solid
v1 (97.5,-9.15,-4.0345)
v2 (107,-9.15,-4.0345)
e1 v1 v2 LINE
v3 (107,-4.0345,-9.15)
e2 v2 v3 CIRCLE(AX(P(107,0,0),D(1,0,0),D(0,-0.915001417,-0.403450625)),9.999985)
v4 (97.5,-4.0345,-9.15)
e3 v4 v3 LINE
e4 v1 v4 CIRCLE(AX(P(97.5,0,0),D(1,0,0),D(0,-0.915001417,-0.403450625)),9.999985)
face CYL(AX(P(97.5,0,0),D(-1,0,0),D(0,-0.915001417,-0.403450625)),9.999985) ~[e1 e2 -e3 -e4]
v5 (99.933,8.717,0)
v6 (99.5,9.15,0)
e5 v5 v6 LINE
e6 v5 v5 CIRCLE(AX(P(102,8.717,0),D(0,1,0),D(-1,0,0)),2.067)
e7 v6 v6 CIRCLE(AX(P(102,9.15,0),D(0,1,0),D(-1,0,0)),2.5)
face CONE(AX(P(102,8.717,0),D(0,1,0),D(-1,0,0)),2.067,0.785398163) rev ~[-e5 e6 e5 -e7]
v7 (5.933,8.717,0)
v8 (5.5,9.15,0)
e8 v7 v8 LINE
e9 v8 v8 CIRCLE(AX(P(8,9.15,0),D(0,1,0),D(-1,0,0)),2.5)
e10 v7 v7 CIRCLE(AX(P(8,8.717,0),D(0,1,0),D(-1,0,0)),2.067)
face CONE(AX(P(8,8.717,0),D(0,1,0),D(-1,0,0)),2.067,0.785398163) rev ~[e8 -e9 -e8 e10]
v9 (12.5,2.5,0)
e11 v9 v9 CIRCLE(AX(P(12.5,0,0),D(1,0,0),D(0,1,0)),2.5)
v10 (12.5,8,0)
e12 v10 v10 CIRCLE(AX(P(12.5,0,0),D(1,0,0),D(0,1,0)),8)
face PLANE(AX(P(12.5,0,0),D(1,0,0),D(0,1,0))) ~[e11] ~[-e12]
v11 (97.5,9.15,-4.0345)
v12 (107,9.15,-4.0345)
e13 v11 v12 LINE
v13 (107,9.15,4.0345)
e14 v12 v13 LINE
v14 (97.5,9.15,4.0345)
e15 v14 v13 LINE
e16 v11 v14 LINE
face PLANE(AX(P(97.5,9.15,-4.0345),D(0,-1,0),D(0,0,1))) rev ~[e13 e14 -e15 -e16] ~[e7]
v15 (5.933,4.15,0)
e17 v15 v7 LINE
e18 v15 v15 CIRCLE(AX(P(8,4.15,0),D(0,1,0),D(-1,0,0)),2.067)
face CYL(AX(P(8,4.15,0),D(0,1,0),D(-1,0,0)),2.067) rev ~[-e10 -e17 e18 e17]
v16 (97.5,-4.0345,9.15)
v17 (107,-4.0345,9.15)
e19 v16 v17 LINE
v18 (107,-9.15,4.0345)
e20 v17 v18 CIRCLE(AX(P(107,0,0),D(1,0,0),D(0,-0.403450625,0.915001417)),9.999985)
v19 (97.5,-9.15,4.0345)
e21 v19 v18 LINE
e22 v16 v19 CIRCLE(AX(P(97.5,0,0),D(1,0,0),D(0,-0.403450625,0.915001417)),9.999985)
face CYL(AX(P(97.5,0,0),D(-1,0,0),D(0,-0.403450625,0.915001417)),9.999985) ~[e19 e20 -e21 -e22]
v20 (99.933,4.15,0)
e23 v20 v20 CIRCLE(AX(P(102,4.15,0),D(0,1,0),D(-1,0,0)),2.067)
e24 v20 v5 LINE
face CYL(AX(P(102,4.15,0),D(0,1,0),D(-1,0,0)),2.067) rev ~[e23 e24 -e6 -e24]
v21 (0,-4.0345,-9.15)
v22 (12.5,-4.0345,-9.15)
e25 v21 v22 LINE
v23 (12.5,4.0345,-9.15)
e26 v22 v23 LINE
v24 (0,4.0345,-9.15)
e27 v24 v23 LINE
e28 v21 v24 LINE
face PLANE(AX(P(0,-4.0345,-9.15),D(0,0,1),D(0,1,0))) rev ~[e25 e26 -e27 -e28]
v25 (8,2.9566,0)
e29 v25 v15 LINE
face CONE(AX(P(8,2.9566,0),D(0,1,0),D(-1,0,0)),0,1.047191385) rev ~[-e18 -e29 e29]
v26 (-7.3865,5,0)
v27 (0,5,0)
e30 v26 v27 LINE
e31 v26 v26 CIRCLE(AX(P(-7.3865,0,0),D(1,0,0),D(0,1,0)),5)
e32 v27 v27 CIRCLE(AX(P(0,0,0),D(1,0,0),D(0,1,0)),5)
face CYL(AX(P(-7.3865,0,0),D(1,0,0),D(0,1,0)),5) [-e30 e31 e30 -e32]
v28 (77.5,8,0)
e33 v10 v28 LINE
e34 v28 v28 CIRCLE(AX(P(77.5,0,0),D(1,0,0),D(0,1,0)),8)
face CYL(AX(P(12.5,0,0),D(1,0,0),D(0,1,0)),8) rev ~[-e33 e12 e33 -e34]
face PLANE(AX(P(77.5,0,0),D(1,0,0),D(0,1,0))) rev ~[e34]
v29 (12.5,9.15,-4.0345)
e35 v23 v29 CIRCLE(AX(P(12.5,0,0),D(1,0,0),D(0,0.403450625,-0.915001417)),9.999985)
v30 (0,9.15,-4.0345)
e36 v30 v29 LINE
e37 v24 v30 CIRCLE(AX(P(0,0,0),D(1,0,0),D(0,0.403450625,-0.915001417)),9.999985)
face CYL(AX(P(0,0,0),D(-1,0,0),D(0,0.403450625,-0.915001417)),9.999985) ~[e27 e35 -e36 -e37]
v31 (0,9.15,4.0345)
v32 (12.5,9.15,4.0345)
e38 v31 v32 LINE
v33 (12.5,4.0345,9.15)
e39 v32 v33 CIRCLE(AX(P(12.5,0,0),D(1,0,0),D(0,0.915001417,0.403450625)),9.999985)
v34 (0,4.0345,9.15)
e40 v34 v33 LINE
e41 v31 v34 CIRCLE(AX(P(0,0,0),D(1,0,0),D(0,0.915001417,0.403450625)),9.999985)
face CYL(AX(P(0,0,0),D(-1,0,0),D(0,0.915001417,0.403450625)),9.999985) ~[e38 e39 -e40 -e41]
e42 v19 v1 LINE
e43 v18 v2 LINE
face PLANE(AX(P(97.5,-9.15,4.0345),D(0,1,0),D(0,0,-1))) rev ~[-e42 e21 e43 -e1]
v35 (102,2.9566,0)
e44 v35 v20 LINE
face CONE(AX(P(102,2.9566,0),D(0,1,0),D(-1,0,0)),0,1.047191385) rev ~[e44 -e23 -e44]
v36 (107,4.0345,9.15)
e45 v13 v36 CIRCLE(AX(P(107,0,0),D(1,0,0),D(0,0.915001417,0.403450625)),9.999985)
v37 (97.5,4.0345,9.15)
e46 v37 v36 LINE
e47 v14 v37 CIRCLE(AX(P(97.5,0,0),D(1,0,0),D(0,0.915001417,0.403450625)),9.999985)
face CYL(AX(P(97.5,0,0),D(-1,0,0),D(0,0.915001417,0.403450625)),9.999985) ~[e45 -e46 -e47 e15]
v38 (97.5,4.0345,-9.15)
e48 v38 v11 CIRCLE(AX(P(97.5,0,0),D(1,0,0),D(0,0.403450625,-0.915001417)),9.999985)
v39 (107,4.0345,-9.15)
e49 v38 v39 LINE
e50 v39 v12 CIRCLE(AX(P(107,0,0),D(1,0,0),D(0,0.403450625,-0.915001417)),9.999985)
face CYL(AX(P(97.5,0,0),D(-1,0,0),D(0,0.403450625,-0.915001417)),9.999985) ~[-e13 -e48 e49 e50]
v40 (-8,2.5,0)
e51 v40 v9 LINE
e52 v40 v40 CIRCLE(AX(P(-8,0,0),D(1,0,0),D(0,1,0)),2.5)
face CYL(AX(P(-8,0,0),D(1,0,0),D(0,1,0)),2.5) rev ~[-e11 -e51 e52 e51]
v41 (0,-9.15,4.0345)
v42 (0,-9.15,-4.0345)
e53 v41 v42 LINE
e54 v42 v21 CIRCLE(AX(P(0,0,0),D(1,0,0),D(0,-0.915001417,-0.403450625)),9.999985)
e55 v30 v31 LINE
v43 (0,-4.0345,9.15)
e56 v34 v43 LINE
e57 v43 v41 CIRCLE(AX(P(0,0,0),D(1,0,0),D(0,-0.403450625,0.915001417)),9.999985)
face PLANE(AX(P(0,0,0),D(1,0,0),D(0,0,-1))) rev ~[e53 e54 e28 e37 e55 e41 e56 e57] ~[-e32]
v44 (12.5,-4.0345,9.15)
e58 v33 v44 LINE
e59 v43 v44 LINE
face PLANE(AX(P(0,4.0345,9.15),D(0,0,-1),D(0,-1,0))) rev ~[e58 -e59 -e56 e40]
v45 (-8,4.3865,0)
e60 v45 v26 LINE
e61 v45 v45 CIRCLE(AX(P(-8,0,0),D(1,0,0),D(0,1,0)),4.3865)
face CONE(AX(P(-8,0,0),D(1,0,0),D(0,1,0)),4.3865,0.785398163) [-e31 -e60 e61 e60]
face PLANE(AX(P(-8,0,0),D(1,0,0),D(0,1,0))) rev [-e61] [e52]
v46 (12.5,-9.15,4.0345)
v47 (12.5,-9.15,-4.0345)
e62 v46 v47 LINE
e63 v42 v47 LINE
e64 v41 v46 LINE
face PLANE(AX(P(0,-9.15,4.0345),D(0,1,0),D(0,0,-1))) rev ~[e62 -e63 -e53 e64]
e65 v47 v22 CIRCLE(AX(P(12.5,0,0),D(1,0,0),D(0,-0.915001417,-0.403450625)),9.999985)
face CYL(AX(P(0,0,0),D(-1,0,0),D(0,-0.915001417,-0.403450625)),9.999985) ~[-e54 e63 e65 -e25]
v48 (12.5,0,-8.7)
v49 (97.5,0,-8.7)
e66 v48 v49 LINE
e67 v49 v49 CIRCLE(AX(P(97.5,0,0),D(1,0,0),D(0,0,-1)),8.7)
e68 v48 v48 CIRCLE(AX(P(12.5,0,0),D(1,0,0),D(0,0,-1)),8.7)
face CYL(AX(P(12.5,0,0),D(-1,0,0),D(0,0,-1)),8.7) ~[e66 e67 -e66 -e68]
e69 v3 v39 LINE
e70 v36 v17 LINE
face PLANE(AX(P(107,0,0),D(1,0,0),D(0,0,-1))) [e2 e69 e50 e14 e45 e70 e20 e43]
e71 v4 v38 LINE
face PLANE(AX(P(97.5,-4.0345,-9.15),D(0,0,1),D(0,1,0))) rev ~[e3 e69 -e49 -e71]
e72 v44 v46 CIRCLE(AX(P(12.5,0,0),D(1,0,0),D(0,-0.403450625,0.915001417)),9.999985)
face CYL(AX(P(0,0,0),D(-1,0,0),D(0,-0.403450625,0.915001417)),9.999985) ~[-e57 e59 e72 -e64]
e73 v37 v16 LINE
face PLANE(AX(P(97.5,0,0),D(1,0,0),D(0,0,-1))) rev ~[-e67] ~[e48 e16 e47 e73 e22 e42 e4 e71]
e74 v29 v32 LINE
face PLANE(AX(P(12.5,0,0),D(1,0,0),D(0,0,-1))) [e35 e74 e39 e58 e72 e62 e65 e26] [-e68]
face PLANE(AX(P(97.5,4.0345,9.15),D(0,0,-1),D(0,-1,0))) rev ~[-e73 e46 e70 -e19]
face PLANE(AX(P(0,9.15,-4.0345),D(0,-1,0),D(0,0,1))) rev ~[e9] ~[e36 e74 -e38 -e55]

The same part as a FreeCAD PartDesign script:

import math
import FreeCAD as App
import Part
import Sketcher
Q = App.Units.Quantity

doc = App.newDocument("Part")
params = doc.addObject("Spreadsheet::Sheet", "Params")
for row, (alias, value) in enumerate([
    ("sketch1_width", "8 mm"),
    ("sketch1_height", "5 mm"),
    ("revolution_angle", "360 deg"),
    ("sketch2_radius", "10 mm"),
    ("pad1_length", "12.5 mm"),
    ("sketch3_diameter", "17.4 mm"),
    ("pad2_length", "85 mm"),
    ("sketch4_radius", "10 mm"),
    ("pad3_length", "9.5 mm"),
    ("sketch5_width", "2.5 mm"),
    ("groove_angle", "360 deg"),
    ("sketch6_width", "2.5 mm"),
    ("groove2_angle", "360 deg"),
    ("sketch7_width", "65 mm"),
    ("sketch7_height", "8 mm"),
    ("sketch7_width2", "85.5 mm"),
    ("sketch7_height2", "5.5 mm"),
    ("groove3_angle", "360 deg"),
], start=1):
    params.set(f"A{row}", alias)
    params.set(f"B{row}", "=" + value)
    params.setAlias(f"B{row}", alias)

body = doc.addObject("PartDesign::Body", "Body")

# Sketch on XY plane
sketch1 = doc.addObject("Sketcher::SketchObject", "Sketch")
body.addObject(sketch1)
sketch1.AttachmentSupport = (doc.XY_Plane, [""])
sketch1.MapMode = "FlatFace"
sketch1.addGeometry([
    Part.LineSegment(App.Vector(-8, 0, 0), App.Vector(0, 0, 0)),  # 0
    Part.LineSegment(App.Vector(0, 0, 0), App.Vector(0, 5, 0)),  # 1
    Part.LineSegment(App.Vector(0, 5, 0), App.Vector(-7.4, 5, 0)),  # 2
    Part.LineSegment(App.Vector(-7.4, 5, 0), App.Vector(-8, 4.4, 0)),  # 3
    Part.LineSegment(App.Vector(-8, 4.4, 0), App.Vector(-8, 0, 0)),  # 4
], False)
sketch1.addConstraint([
    Sketcher.Constraint("Coincident", 0, 2, 1, 1),
    Sketcher.Constraint("Coincident", 1, 2, 2, 1),
    Sketcher.Constraint("Coincident", 2, 2, 3, 1),
    Sketcher.Constraint("Coincident", 3, 2, 4, 1),
    Sketcher.Constraint("Coincident", 4, 2, 0, 1),
    Sketcher.Constraint("Horizontal", 0),
    Sketcher.Constraint("Vertical", 1),
    Sketcher.Constraint("Horizontal", 2),
    Sketcher.Constraint("Vertical", 4),
    Sketcher.Constraint("Coincident", 0, 2, -1, 1),
    Sketcher.Constraint("DistanceX", 0, 1, 0, 2, 8.0),
    Sketcher.Constraint("DistanceY", 1, 1, 1, 2, 5.0),
    Sketcher.Constraint("Angle", 3, Q("-135 deg")),
    Sketcher.Constraint("DistanceX", 2, 2, 2, 1, 7.3865),
])
sketch1.setExpression("Constraints[10]", "Params.sketch1_width")
sketch1.setExpression("Constraints[11]", "Params.sketch1_height")
revolution = doc.addObject("PartDesign::Revolution", "Revolution")
body.addObject(revolution)
revolution.Profile = sketch1
revolution.ReferenceAxis = (sketch1, ["H_Axis"])
revolution.setExpression("Angle", "Params.revolution_angle")

# Sketch on YZ plane
sketch2 = doc.addObject("Sketcher::SketchObject", "Sketch001")
body.addObject(sketch2)
sketch2.AttachmentSupport = (doc.YZ_Plane, [""])
sketch2.MapMode = "FlatFace"
sketch2.addGeometry([
    Part.ArcOfCircle(Part.Circle(App.Vector(0, 0, 0), App.Vector(0, 0, 1), 10), math.radians(24), math.radians(66)),  # 0
    Part.LineSegment(App.Vector(4, 9, 0), App.Vector(-4, 9, 0)),  # 1
    Part.ArcOfCircle(Part.Circle(App.Vector(0, 0, 0), App.Vector(0, 0, 1), 10), math.radians(114), math.radians(156)),  # 2
    Part.LineSegment(App.Vector(-9, 4, 0), App.Vector(-9, -4, 0)),  # 3
    Part.ArcOfCircle(Part.Circle(App.Vector(0, 0, 0), App.Vector(0, 0, 1), 10), math.radians(-156), math.radians(-114)),  # 4
    Part.LineSegment(App.Vector(-4, -9, 0), App.Vector(4, -9, 0)),  # 5
    Part.ArcOfCircle(Part.Circle(App.Vector(0, 0, 0), App.Vector(0, 0, 1), 10), math.radians(-66), math.radians(-24)),  # 6
    Part.LineSegment(App.Vector(9, -4, 0), App.Vector(9, 4, 0)),  # 7
], False)
sketch2.addConstraint([
    Sketcher.Constraint("Coincident", 0, 2, 1, 1),
    Sketcher.Constraint("Coincident", 1, 2, 2, 1),
    Sketcher.Constraint("Coincident", 2, 2, 3, 1),
    Sketcher.Constraint("Coincident", 3, 2, 4, 1),
    Sketcher.Constraint("Coincident", 4, 2, 5, 1),
    Sketcher.Constraint("Coincident", 5, 2, 6, 1),
    Sketcher.Constraint("Coincident", 6, 2, 7, 1),
    Sketcher.Constraint("Coincident", 7, 2, 0, 1),
    Sketcher.Constraint("Horizontal", 1),
    Sketcher.Constraint("Vertical", 3),
    Sketcher.Constraint("Horizontal", 5),
    Sketcher.Constraint("Vertical", 7),
    Sketcher.Constraint("Coincident", 0, 3, -1, 1),
    Sketcher.Constraint("Coincident", 2, 3, -1, 1),
    Sketcher.Constraint("Coincident", 4, 3, -1, 1),
    Sketcher.Constraint("Coincident", 6, 3, -1, 1),
    Sketcher.Constraint("Equal", 0, 2),
    Sketcher.Constraint("Equal", 2, 4),
    Sketcher.Constraint("Equal", 4, 6),
    Sketcher.Constraint("Horizontal", 3, 2, 6, 2),
    Sketcher.Constraint("Vertical", 1, 2, 4, 2),
    Sketcher.Constraint("Equal", 5, 3),
    Sketcher.Constraint("Radius", 0, 10.0),
    Sketcher.Constraint("DistanceX", 1, 2, 1, 1, 8.069),
])
sketch2.setExpression("Constraints[22]", "Params.sketch2_radius")
pad1 = doc.addObject("PartDesign::Pad", "Pad")
body.addObject(pad1)
pad1.Profile = sketch2
pad1.setExpression("Length", "Params.pad1_length")

# Sketch on YZ plane
sketch3 = doc.addObject("Sketcher::SketchObject", "Sketch002")
body.addObject(sketch3)
sketch3.AttachmentSupport = (doc.YZ_Plane, [""])
sketch3.MapMode = "FlatFace"
sketch3.AttachmentOffset = App.Placement(App.Vector(0, 0, 12.5), App.Rotation())
sketch3.addGeometry(Part.Circle(App.Vector(0, 0, 0), App.Vector(0, 0, 1), 9), False)
sketch3.addConstraint([
    Sketcher.Constraint("Coincident", 0, 3, -1, 1),
    Sketcher.Constraint("Diameter", 0, 17.4),
])
sketch3.setExpression("Constraints[1]", "Params.sketch3_diameter")
pad2 = doc.addObject("PartDesign::Pad", "Pad001")
body.addObject(pad2)
pad2.Profile = sketch3
pad2.setExpression("Length", "Params.pad2_length")

# Sketch on YZ plane
sketch4 = doc.addObject("Sketcher::SketchObject", "Sketch003")
body.addObject(sketch4)
sketch4.AttachmentSupport = (doc.YZ_Plane, [""])
sketch4.MapMode = "FlatFace"
sketch4.AttachmentOffset = App.Placement(App.Vector(0, 0, 97.5), App.Rotation())
sketch4.addGeometry([
    Part.ArcOfCircle(Part.Circle(App.Vector(0, 0, 0), App.Vector(0, 0, 1), 10), math.radians(24), math.radians(66)),  # 0
    Part.LineSegment(App.Vector(4, 9, 0), App.Vector(-4, 9, 0)),  # 1
    Part.ArcOfCircle(Part.Circle(App.Vector(0, 0, 0), App.Vector(0, 0, 1), 10), math.radians(114), math.radians(156)),  # 2
    Part.LineSegment(App.Vector(-9, 4, 0), App.Vector(-9, -4, 0)),  # 3
    Part.ArcOfCircle(Part.Circle(App.Vector(0, 0, 0), App.Vector(0, 0, 1), 10), math.radians(-156), math.radians(-114)),  # 4
    Part.LineSegment(App.Vector(-4, -9, 0), App.Vector(4, -9, 0)),  # 5
    Part.ArcOfCircle(Part.Circle(App.Vector(0, 0, 0), App.Vector(0, 0, 1), 10), math.radians(-66), math.radians(-24)),  # 6
    Part.LineSegment(App.Vector(9, -4, 0), App.Vector(9, 4, 0)),  # 7
], False)
sketch4.addConstraint([
    Sketcher.Constraint("Coincident", 0, 2, 1, 1),
    Sketcher.Constraint("Coincident", 1, 2, 2, 1),
    Sketcher.Constraint("Coincident", 2, 2, 3, 1),
    Sketcher.Constraint("Coincident", 3, 2, 4, 1),
    Sketcher.Constraint("Coincident", 4, 2, 5, 1),
    Sketcher.Constraint("Coincident", 5, 2, 6, 1),
    Sketcher.Constraint("Coincident", 6, 2, 7, 1),
    Sketcher.Constraint("Coincident", 7, 2, 0, 1),
    Sketcher.Constraint("Horizontal", 1),
    Sketcher.Constraint("Vertical", 3),
    Sketcher.Constraint("Horizontal", 5),
    Sketcher.Constraint("Vertical", 7),
    Sketcher.Constraint("Coincident", 0, 3, -1, 1),
    Sketcher.Constraint("Coincident", 2, 3, -1, 1),
    Sketcher.Constraint("Coincident", 4, 3, -1, 1),
    Sketcher.Constraint("Coincident", 6, 3, -1, 1),
    Sketcher.Constraint("Equal", 0, 2),
    Sketcher.Constraint("Equal", 2, 4),
    Sketcher.Constraint("Equal", 4, 6),
    Sketcher.Constraint("Horizontal", 3, 2, 6, 2),
    Sketcher.Constraint("Vertical", 1, 2, 4, 2),
    Sketcher.Constraint("Equal", 5, 3),
    Sketcher.Constraint("Radius", 0, 10.0),
    Sketcher.Constraint("DistanceX", 1, 2, 1, 1, 8.069),
])
sketch4.setExpression("Constraints[22]", "Params.sketch4_radius")
pad3 = doc.addObject("PartDesign::Pad", "Pad002")
body.addObject(pad3)
pad3.Profile = sketch4
pad3.setExpression("Length", "Params.pad3_length")

# Sketch on XY plane
sketch5 = doc.addObject("Sketcher::SketchObject", "Sketch004")
body.addObject(sketch5)
sketch5.AttachmentSupport = (doc.XY_Plane, [""])
sketch5.MapMode = "FlatFace"
sketch5.addGeometry([
    Part.LineSegment(App.Vector(8, 3, 0), App.Vector(8, 9.2, 0)),  # 0
    Part.LineSegment(App.Vector(8, 9.2, 0), App.Vector(5.5, 9.2, 0)),  # 1
    Part.LineSegment(App.Vector(5.5, 9.2, 0), App.Vector(5.9, 8.7, 0)),  # 2
    Part.LineSegment(App.Vector(5.9, 8.7, 0), App.Vector(5.9, 4.2, 0)),  # 3
    Part.LineSegment(App.Vector(5.9, 4.2, 0), App.Vector(8, 3, 0)),  # 4
], False)
sketch5.addGeometry(Part.LineSegment(App.Vector(8, 3, 0), App.Vector(8, 9.2, 0)), True)  # axis
sketch5.addConstraint([
    Sketcher.Constraint("Coincident", 0, 2, 1, 1),
    Sketcher.Constraint("Coincident", 1, 2, 2, 1),
    Sketcher.Constraint("Coincident", 2, 2, 3, 1),
    Sketcher.Constraint("Coincident", 3, 2, 4, 1),
    Sketcher.Constraint("Coincident", 4, 2, 0, 1),
    Sketcher.Constraint("Vertical", 0),
    Sketcher.Constraint("Horizontal", 1),
    Sketcher.Constraint("Vertical", 3),
    Sketcher.Constraint("Vertical", 5),
    Sketcher.Constraint("Coincident", 5, 1, 4, 2),
    Sketcher.Constraint("Horizontal", 1, 2, 5, 2),
    Sketcher.Constraint("Angle", 2, Q("-45 deg")),
    Sketcher.Constraint("Angle", 4, Q("-30.0004 deg")),
    Sketcher.Constraint("DistanceX", 1, 2, 1, 1, 2.5),
    Sketcher.Constraint("DistanceX", -1, 1, 0, 2, 8.0),
    Sketcher.Constraint("DistanceY", 3, 2, 1, 2, 5.0),
    Sketcher.Constraint("DistanceY", 3, 2, 3, 1, 4.567),
    Sketcher.Constraint("DistanceY", -1, 1, 0, 2, 9.15),
])
sketch5.setExpression("Constraints[13]", "Params.sketch5_width")
groove = doc.addObject("PartDesign::Groove", "Groove")
body.addObject(groove)
groove.Profile = sketch5
groove.ReferenceAxis = (sketch5, ["Axis0"])
groove.setExpression("Angle", "Params.groove_angle")

# Sketch on XY plane
sketch6 = doc.addObject("Sketcher::SketchObject", "Sketch005")
body.addObject(sketch6)
sketch6.AttachmentSupport = (doc.XY_Plane, [""])
sketch6.MapMode = "FlatFace"
sketch6.addGeometry([
    Part.LineSegment(App.Vector(102, 3, 0), App.Vector(102, 9.2, 0)),  # 0
    Part.LineSegment(App.Vector(102, 9.2, 0), App.Vector(99.5, 9.2, 0)),  # 1
    Part.LineSegment(App.Vector(99.5, 9.2, 0), App.Vector(99.9, 8.7, 0)),  # 2
    Part.LineSegment(App.Vector(99.9, 8.7, 0), App.Vector(99.9, 4.2, 0)),  # 3
    Part.LineSegment(App.Vector(99.9, 4.2, 0), App.Vector(102, 3, 0)),  # 4
], False)
sketch6.addGeometry(Part.LineSegment(App.Vector(102, 3, 0), App.Vector(102, 9.2, 0)), True)  # axis
sketch6.addConstraint([
    Sketcher.Constraint("Coincident", 0, 2, 1, 1),
    Sketcher.Constraint("Coincident", 1, 2, 2, 1),
    Sketcher.Constraint("Coincident", 2, 2, 3, 1),
    Sketcher.Constraint("Coincident", 3, 2, 4, 1),
    Sketcher.Constraint("Coincident", 4, 2, 0, 1),
    Sketcher.Constraint("Vertical", 0),
    Sketcher.Constraint("Horizontal", 1),
    Sketcher.Constraint("Vertical", 3),
    Sketcher.Constraint("Vertical", 5),
    Sketcher.Constraint("Coincident", 5, 1, 4, 2),
    Sketcher.Constraint("Horizontal", 1, 2, 5, 2),
    Sketcher.Constraint("Angle", 2, Q("-45 deg")),
    Sketcher.Constraint("Angle", 4, Q("-30.0004 deg")),
    Sketcher.Constraint("DistanceX", 1, 2, 1, 1, 2.5),
    Sketcher.Constraint("DistanceX", -1, 1, 0, 2, 102.0),
    Sketcher.Constraint("DistanceY", 3, 2, 1, 2, 5.0),
    Sketcher.Constraint("DistanceY", 3, 2, 3, 1, 4.567),
    Sketcher.Constraint("DistanceY", -1, 1, 0, 2, 9.15),
])
sketch6.setExpression("Constraints[13]", "Params.sketch6_width")
groove2 = doc.addObject("PartDesign::Groove", "Groove001")
body.addObject(groove2)
groove2.Profile = sketch6
groove2.ReferenceAxis = (sketch6, ["Axis0"])
groove2.setExpression("Angle", "Params.groove2_angle")

# Sketch on XY plane
sketch7 = doc.addObject("Sketcher::SketchObject", "Sketch006")
body.addObject(sketch7)
sketch7.AttachmentSupport = (doc.XY_Plane, [""])
sketch7.MapMode = "FlatFace"
sketch7.addGeometry([
    Part.LineSegment(App.Vector(-8, 0, 0), App.Vector(77.5, 0, 0)),  # 0
    Part.LineSegment(App.Vector(77.5, 0, 0), App.Vector(77.5, 8, 0)),  # 1
    Part.LineSegment(App.Vector(77.5, 8, 0), App.Vector(12.5, 8, 0)),  # 2
    Part.LineSegment(App.Vector(12.5, 8, 0), App.Vector(12.5, 2.5, 0)),  # 3
    Part.LineSegment(App.Vector(12.5, 2.5, 0), App.Vector(-8, 2.5, 0)),  # 4
    Part.LineSegment(App.Vector(-8, 2.5, 0), App.Vector(-8, 0, 0)),  # 5
], False)
sketch7.addConstraint([
    Sketcher.Constraint("Coincident", 0, 2, 1, 1),
    Sketcher.Constraint("Coincident", 1, 2, 2, 1),
    Sketcher.Constraint("Coincident", 2, 2, 3, 1),
    Sketcher.Constraint("Coincident", 3, 2, 4, 1),
    Sketcher.Constraint("Coincident", 4, 2, 5, 1),
    Sketcher.Constraint("Coincident", 5, 2, 0, 1),
    Sketcher.Constraint("Horizontal", 0),
    Sketcher.Constraint("Vertical", 1),
    Sketcher.Constraint("Horizontal", 2),
    Sketcher.Constraint("Vertical", 3),
    Sketcher.Constraint("Horizontal", 4),
    Sketcher.Constraint("Vertical", 5),
    Sketcher.Constraint("PointOnObject", 0, 2, -1),
    Sketcher.Constraint("DistanceX", 2, 2, 2, 1, 65.0),
    Sketcher.Constraint("DistanceY", 1, 1, 1, 2, 8.0),
    Sketcher.Constraint("DistanceX", 0, 1, 0, 2, 85.5),
    Sketcher.Constraint("DistanceY", 3, 2, 3, 1, 5.5),
    Sketcher.Constraint("DistanceX", 4, 2, -1, 1, 8.0),
])
sketch7.setExpression("Constraints[13]", "Params.sketch7_width")
sketch7.setExpression("Constraints[14]", "Params.sketch7_height")
sketch7.setExpression("Constraints[15]", "Params.sketch7_width2")
sketch7.setExpression("Constraints[16]", "Params.sketch7_height2")
groove3 = doc.addObject("PartDesign::Groove", "Groove002")
body.addObject(groove3)
groove3.Profile = sketch7
groove3.ReferenceAxis = (sketch7, ["H_Axis"])
groove3.setExpression("Angle", "Params.groove3_angle")

doc.recompute()
